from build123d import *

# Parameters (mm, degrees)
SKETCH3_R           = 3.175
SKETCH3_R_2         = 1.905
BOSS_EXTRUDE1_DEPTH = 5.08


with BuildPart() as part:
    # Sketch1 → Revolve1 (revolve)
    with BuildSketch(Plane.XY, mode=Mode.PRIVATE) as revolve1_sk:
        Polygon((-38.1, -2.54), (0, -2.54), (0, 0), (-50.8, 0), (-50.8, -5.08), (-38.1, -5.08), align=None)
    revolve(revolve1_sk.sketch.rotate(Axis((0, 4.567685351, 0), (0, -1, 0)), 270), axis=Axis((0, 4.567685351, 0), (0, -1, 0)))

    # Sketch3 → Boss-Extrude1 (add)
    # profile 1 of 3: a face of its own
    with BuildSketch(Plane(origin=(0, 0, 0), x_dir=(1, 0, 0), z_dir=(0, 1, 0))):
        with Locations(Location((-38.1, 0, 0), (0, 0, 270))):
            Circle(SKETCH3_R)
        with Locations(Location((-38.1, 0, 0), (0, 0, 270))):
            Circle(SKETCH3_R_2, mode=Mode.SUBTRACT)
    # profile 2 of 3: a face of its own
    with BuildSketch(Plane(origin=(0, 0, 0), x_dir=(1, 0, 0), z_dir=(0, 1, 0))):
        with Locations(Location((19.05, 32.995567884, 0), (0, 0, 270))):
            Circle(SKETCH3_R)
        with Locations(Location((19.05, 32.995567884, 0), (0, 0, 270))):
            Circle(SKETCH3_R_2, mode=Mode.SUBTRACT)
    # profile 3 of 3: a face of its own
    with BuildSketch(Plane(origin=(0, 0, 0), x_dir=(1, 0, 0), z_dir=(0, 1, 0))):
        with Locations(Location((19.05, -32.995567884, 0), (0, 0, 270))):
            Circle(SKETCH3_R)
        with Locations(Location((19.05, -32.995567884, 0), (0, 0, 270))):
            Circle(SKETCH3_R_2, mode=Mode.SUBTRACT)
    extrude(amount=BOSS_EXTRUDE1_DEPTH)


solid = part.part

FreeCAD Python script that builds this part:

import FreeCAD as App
import Part
import Sketcher

V = App.Vector
Q = App.Units.Quantity


def add_polygon(sketch, points):
    """Adds a closed chain of lines whose ends are joined by coincident constraints."""
    first, n = sketch.GeometryCount, len(points)
    for a, b in zip(points, points[1:] + points[:1]):
        sketch.addGeometry(Part.LineSegment(App.Vector(*a, 0), App.Vector(*b, 0)), False)
    for i in range(n):
        sketch.addConstraint(Sketcher.Constraint("Coincident", first + i, 2, first + (i + 1) % n, 1))

doc = App.newDocument("Part")
params = doc.addObject("Spreadsheet::Sheet", "Params")
for row, (alias, value) in enumerate([
    ("sketch1_width", "2 in"),
    ("sketch1_width2", "1.5 in"),
    ("sketch1_height", "0.1 in"),
    ("revolution_angle", "360 deg"),
    ("sketch2_diameter", "0.25 in"),
    ("sketch2_diameter2", "0.15 in"),
    ("pad1_length", "0.2 in"),
], start=1):
    params.set(f"A{row}", alias)
    params.set(f"B{row}", "=" + value)
    params.setAlias(f"B{row}", alias)

body = doc.addObject("PartDesign::Body", "Body")

# Sketch on XY plane
sketch1 = body.newObject("Sketcher::SketchObject", "Sketch")
sketch1.AttachmentSupport = (doc.getObject("XY_Plane"), [""])
sketch1.MapMode = "FlatFace"
add_polygon(sketch1, [(-38.1, -2.54), (0, -2.54), (0, 0), (-50.8, 0), (-50.8, -5.08), (-38.1, -5.08)])  # lines 0-5
sketch1.addConstraint(Sketcher.Constraint("Horizontal", 0))
sketch1.addConstraint(Sketcher.Constraint("Vertical", 1))
sketch1.addConstraint(Sketcher.Constraint("Horizontal", 2))
sketch1.addConstraint(Sketcher.Constraint("Vertical", 3))
sketch1.addConstraint(Sketcher.Constraint("Horizontal", 4))
sketch1.addConstraint(Sketcher.Constraint("Vertical", 5))
sketch1.addConstraint(Sketcher.Constraint("Coincident", 1, 2, -1, 1))
sketch1.addConstraint(Sketcher.Constraint("Equal", 1, 5))
sketch1.addConstraint(Sketcher.Constraint("DistanceX", 2, 2, 2, 1, Q("2 in")))
sketch1.addConstraint(Sketcher.Constraint("DistanceX", 0, 1, 0, 2, Q("1.5 in")))
sketch1.addConstraint(Sketcher.Constraint("DistanceY", 1, 1, 1, 2, Q("0.1 in")))
sketch1.setExpression("Constraints[14]", "Params.sketch1_width")
sketch1.setExpression("Constraints[15]", "Params.sketch1_width2")
sketch1.setExpression("Constraints[16]", "Params.sketch1_height")
revolution = body.newObject("PartDesign::Revolution", "Revolution")
revolution.Profile = sketch1
revolution.ReferenceAxis = (sketch1, ["V_Axis"])
revolution.setExpression("Angle", "Params.revolution_angle")

# Sketch on XZ plane
sketch2 = body.newObject("Sketcher::SketchObject", "Sketch001")
sketch2.AttachmentSupport = (doc.getObject("XZ_Plane"), [""])
sketch2.MapMode = "FlatFace"
sketch2.addGeometry(Part.Circle(V(-38.1, 0, 0), V(0, 0, 1), 3.175), False)
sketch2.addGeometry(Part.Circle(V(-38.1, 0, 0), V(0, 0, 1), 1.905), False)
sketch2.addGeometry(Part.Circle(V(19.05, -32.995568, 0), V(0, 0, 1), 3.175), False)
sketch2.addGeometry(Part.Circle(V(19.05, -32.995568, 0), V(0, 0, 1), 1.905), False)
sketch2.addGeometry(Part.Circle(V(19.05, 32.995568, 0), V(0, 0, 1), 3.175), False)
sketch2.addGeometry(Part.Circle(V(19.05, 32.995568, 0), V(0, 0, 1), 1.905), False)
sketch2.addConstraint(Sketcher.Constraint("Coincident", 1, 3, 0, 3))
sketch2.addConstraint(Sketcher.Constraint("Coincident", 3, 3, 2, 3))
sketch2.addConstraint(Sketcher.Constraint("Coincident", 5, 3, 4, 3))
sketch2.addConstraint(Sketcher.Constraint("Equal", 0, 2))
sketch2.addConstraint(Sketcher.Constraint("Equal", 1, 3))
sketch2.addConstraint(Sketcher.Constraint("Equal", 2, 4))
sketch2.addConstraint(Sketcher.Constraint("Equal", 3, 5))
sketch2.addConstraint(Sketcher.Constraint("Symmetric", 2, 3, 4, 3, -1))
sketch2.addConstraint(Sketcher.Constraint("PointOnObject", 0, 3, -1))
sketch2.addConstraint(Sketcher.Constraint("Diameter", 0, Q("0.25 in")))
sketch2.addConstraint(Sketcher.Constraint("Diameter", 1, Q("0.15 in")))
sketch2.addConstraint(Sketcher.Constraint("DistanceX", 0, 3, -1, 1, Q("1.5 in")))
sketch2.addConstraint(Sketcher.Constraint("DistanceX", -1, 1, 2, 3, Q("0.75 in")))
sketch2.addConstraint(Sketcher.Constraint("DistanceY", 2, 3, -1, 1, 32.995568))
sketch2.setExpression("Constraints[9]", "Params.sketch2_diameter")
sketch2.setExpression("Constraints[10]", "Params.sketch2_diameter2")
pad1 = body.newObject("PartDesign::Pad", "Pad")
pad1.Profile = sketch2
pad1.setExpression("Length", "Params.pad1_length")
pad1.Reversed = True

doc.recompute()
